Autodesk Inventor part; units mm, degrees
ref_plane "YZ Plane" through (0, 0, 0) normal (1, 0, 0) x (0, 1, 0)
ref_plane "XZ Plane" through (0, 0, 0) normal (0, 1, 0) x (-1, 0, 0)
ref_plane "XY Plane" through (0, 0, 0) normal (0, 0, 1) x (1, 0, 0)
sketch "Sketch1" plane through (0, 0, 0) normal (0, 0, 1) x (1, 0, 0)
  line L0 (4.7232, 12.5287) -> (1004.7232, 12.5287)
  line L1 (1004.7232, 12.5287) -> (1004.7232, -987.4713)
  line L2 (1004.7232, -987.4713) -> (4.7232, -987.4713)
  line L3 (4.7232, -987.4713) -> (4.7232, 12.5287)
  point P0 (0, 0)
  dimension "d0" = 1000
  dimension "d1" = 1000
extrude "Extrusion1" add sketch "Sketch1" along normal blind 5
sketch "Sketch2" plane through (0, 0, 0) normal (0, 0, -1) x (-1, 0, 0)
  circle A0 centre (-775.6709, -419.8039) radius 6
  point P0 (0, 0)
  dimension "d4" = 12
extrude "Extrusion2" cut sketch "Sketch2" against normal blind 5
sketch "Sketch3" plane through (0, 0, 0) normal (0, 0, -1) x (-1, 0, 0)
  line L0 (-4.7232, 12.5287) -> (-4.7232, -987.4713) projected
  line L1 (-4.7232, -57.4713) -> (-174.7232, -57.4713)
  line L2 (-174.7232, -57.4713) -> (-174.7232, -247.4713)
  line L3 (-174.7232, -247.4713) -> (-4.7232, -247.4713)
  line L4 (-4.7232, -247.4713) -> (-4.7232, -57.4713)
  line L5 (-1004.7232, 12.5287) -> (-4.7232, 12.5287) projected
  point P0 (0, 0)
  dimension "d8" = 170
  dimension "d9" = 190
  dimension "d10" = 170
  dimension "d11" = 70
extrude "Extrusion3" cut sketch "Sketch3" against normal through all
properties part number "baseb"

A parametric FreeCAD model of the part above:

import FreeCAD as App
import Part
import Sketcher
from FreeCAD import Vector
Q = App.Units.Quantity


def add_polygon(sketch, points):
    """Adds a closed chain of lines whose ends are joined by coincident constraints."""
    first, n = sketch.GeometryCount, len(points)
    for a, b in zip(points, points[1:] + points[:1]):
        sketch.addGeometry(Part.LineSegment(App.Vector(*a, 0), App.Vector(*b, 0)), False)
    for i in range(n):
        sketch.addConstraint(Sketcher.Constraint("Coincident", first + i, 2, first + (i + 1) % n, 1))

doc = App.newDocument("Part")
body = doc.addObject("PartDesign::Body", "Body")

# Sketch on XY plane
sketch1 = body.newObject("Sketcher::SketchObject", "Sketch")
sketch1.AttachmentSupport = (doc.getObject("XY_Plane"), [""])
sketch1.MapMode = "FlatFace"
add_polygon(sketch1, [(1005, 13), (5, 13), (5, -987), (1005, -987)])  # lines 0-3
sketch1.addConstraint([
    Sketcher.Constraint("Horizontal", 0),
    Sketcher.Constraint("Vertical", 1),
    Sketcher.Constraint("Horizontal", 2),
    Sketcher.Constraint("Vertical", 3),
    Sketcher.Constraint("Equal", 2, 1),
    Sketcher.Constraint("DistanceX", 0, 2, 0, 1, Q("1000 mm")),
    Sketcher.Constraint("DistanceX", -1, 1, 0, 2, Q("4.7232 mm")),
    Sketcher.Constraint("DistanceY", -1, 1, 0, 2, Q("12.5287 mm")),
])
pad1 = body.newObject("PartDesign::Pad", "Pad")
pad1.Profile = sketch1
pad1.Length = 5

# Sketch on XY plane
sketch2 = body.newObject("Sketcher::SketchObject", "Sketch001")
sketch2.AttachmentSupport = (doc.getObject("XY_Plane"), [""])
sketch2.MapMode = "FlatFace"
sketch2.addGeometry(Part.Circle(Vector(776, -420, 0), Vector(0, 0, 1), 6), False)
sketch2.addConstraint([
    Sketcher.Constraint("Diameter", 0, Q("12 mm")),
    Sketcher.Constraint("DistanceX", -1, 1, 0, 3, Q("775.671 mm")),
    Sketcher.Constraint("DistanceY", 0, 3, -1, 1, Q("419.804 mm")),
])
pocket1 = body.newObject("PartDesign::Pocket", "Pocket")
pocket1.Profile = sketch2
pocket1.Length = 5
pocket1.Reversed = True

# Sketch on XY plane
sketch3 = body.newObject("Sketcher::SketchObject", "Sketch002")
sketch3.AttachmentSupport = (doc.getObject("XY_Plane"), [""])
sketch3.MapMode = "FlatFace"
add_polygon(sketch3, [(5, -247), (5, -57), (175, -57), (175, -247)])  # lines 0-3
sketch3.addConstraint([
    Sketcher.Constraint("Vertical", 0),
    Sketcher.Constraint("Horizontal", 1),
    Sketcher.Constraint("Vertical", 2),
    Sketcher.Constraint("Horizontal", 3),
    Sketcher.Constraint("DistanceX", 1, 1, 1, 2, Q("170 mm")),
    Sketcher.Constraint("DistanceY", 0, 1, 0, 2, Q("190 mm")),
    Sketcher.Constraint("DistanceX", -1, 1, 0, 2, Q("4.7232 mm")),
    Sketcher.Constraint("DistanceY", 0, 2, -1, 1, Q("57.4713 mm")),
])
pocket2 = body.newObject("PartDesign::Pocket", "Pocket001")
pocket2.Profile = sketch3
pocket2.Type = "ThroughAll"
pocket2.Reversed = True

doc.recompute()
